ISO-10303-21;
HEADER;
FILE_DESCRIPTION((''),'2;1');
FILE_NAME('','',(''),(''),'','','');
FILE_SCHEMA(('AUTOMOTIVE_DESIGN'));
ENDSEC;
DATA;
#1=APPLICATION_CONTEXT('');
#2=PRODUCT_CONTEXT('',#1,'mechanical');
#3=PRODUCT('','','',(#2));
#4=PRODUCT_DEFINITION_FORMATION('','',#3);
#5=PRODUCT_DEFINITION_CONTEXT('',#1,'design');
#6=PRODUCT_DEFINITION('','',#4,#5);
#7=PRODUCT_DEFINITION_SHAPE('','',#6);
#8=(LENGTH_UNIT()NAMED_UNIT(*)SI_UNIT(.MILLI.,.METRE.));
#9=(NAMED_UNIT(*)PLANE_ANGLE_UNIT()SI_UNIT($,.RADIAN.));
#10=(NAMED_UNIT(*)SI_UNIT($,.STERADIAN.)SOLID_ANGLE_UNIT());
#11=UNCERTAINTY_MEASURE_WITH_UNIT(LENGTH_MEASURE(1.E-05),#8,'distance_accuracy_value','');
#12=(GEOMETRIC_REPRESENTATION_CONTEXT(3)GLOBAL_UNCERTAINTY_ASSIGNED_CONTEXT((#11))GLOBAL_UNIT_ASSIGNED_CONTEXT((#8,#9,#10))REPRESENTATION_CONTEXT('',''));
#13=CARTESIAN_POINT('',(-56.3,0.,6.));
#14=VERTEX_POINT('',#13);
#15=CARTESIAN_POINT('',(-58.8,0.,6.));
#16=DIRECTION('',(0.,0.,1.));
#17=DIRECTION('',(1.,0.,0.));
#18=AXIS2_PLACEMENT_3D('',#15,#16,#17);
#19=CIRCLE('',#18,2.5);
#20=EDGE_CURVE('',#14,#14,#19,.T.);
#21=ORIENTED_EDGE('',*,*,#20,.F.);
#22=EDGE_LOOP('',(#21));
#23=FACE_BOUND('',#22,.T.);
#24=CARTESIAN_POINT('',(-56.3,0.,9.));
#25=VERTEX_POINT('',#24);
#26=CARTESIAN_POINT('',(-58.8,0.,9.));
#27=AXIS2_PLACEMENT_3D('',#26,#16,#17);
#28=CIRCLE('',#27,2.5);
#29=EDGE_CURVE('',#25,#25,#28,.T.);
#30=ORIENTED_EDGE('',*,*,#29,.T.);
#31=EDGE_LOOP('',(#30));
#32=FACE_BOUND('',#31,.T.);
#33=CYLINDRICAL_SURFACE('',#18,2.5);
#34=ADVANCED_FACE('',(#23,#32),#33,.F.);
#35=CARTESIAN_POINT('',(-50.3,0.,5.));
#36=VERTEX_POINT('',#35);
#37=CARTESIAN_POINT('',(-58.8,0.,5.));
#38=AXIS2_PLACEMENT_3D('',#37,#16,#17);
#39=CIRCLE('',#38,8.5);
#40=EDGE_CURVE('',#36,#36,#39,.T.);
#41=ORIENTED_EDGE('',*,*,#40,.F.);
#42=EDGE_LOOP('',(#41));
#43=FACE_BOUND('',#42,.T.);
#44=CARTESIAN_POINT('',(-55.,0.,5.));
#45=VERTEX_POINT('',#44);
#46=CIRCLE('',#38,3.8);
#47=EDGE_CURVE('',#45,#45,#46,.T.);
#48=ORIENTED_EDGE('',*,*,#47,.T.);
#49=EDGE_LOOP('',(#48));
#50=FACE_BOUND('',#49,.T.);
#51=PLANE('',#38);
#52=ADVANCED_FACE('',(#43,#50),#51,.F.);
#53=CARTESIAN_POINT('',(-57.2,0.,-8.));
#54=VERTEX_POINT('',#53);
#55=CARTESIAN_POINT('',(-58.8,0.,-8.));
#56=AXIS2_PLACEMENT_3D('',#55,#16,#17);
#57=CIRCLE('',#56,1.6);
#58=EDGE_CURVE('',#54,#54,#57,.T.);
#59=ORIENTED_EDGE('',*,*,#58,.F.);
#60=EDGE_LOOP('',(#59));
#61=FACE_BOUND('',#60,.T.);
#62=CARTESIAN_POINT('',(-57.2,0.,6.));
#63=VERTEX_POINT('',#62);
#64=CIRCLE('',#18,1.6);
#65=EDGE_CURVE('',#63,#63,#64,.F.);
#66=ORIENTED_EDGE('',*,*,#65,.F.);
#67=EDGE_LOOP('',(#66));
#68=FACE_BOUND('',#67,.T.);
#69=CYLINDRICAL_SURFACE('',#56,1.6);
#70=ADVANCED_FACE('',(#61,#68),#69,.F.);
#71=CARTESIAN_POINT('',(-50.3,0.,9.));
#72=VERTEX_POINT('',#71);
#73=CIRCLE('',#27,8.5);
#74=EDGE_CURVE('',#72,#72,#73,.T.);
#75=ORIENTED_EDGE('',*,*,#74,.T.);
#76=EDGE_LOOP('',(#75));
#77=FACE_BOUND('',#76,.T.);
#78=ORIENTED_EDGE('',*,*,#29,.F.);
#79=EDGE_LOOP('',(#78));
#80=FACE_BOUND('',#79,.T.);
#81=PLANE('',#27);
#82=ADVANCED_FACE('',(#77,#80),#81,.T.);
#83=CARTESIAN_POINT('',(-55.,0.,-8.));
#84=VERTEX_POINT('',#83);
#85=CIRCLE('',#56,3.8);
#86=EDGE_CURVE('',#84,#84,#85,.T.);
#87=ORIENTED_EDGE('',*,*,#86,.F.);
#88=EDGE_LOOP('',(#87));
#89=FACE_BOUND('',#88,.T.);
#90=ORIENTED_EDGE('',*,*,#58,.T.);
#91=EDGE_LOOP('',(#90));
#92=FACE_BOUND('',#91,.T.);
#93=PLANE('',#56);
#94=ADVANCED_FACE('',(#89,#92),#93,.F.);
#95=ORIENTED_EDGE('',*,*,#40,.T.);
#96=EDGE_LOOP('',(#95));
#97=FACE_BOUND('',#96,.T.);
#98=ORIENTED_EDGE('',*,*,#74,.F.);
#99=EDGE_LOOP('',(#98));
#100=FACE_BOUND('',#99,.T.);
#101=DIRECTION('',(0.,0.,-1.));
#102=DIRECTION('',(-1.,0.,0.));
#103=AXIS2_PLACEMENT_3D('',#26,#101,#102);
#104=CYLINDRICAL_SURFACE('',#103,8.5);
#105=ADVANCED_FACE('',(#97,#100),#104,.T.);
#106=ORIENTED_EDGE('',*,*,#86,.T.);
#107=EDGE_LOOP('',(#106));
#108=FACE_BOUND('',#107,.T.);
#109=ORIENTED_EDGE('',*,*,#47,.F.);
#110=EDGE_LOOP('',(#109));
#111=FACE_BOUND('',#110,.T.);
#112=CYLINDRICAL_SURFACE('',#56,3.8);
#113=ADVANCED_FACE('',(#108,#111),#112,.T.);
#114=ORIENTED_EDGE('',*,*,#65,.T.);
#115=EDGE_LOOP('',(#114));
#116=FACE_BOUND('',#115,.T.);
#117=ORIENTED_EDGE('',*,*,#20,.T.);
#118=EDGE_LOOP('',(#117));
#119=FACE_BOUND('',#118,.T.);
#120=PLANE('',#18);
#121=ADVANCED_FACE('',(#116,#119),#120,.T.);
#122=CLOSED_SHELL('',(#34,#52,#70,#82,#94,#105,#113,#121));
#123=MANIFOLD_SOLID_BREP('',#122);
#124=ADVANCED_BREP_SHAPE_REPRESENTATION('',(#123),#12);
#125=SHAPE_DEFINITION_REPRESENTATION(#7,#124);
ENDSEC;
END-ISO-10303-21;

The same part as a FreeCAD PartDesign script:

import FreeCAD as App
import Part
import Sketcher

doc = App.newDocument("Part")
body = doc.addObject("PartDesign::Body", "Body")

# Sketch on XY plane
sketch1 = body.newObject("Sketcher::SketchObject", "Sketch")
sketch1.AttachmentSupport = (doc.getObject("XY_Plane"), [""])
sketch1.MapMode = "FlatFace"
sketch1.addGeometry([
    Part.Circle(App.Vector(-58.8, 0, 0), App.Vector(0, 0, 1), 3.8),
    Part.Circle(App.Vector(-58.8, 0, 0), App.Vector(0, 0, 1), 1.6),
], False)
sketch1.addConstraint([
    Sketcher.Constraint("Coincident", 1, 3, 0, 3),
    Sketcher.Constraint("PointOnObject", 0, 3, -1),
    Sketcher.Constraint("Diameter", 0, 7.6),
    Sketcher.Constraint("Diameter", 1, 3.2),
    Sketcher.Constraint("DistanceX", 0, 3, -1, 1, 58.8),
])
pad1 = body.newObject("PartDesign::Pad", "Pad")
pad1.Profile = sketch1
pad1.Type = "TwoLengths"
pad1.Length = 5
pad1.Length2 = 8

# Sketch on XY plane
sketch2 = body.newObject("Sketcher::SketchObject", "Sketch001")
sketch2.AttachmentSupport = (doc.getObject("XY_Plane"), [""])
sketch2.MapMode = "FlatFace"
sketch2.AttachmentOffset = App.Placement(App.Vector(0, 0, 5), App.Rotation())
sketch2.addGeometry(Part.Circle(App.Vector(-59, 0, 0), App.Vector(0, 0, 1), 8), False)
sketch2.addConstraint([
    Sketcher.Constraint("PointOnObject", 0, 3, -1),
    Sketcher.Constraint("Diameter", 0, 17.0),
    Sketcher.Constraint("DistanceX", 0, 3, -1, 1, 58.8),
])
pad2 = body.newObject("PartDesign::Pad", "Pad001")
pad2.Profile = sketch2
pad2.Length = 4

# Sketch on XY plane
sketch3 = body.newObject("Sketcher::SketchObject", "Sketch002")
sketch3.AttachmentSupport = (doc.getObject("XY_Plane"), [""])
sketch3.MapMode = "FlatFace"
sketch3.AttachmentOffset = App.Placement(App.Vector(0, 0, 5), App.Rotation())
sketch3.addGeometry(Part.Circle(App.Vector(-58.8, 0, 0), App.Vector(0, 0, 1), 1.6), False)
sketch3.addConstraint([
    Sketcher.Constraint("PointOnObject", 0, 3, -1),
    Sketcher.Constraint("Diameter", 0, 3.2),
    Sketcher.Constraint("DistanceX", 0, 3, -1, 1, 58.8),
])
pocket1 = body.newObject("PartDesign::Pocket", "Pocket")
pocket1.Profile = sketch3
pocket1.Length = 4
pocket1.Reversed = True

# Sketch on XY plane
sketch4 = body.newObject("Sketcher::SketchObject", "Sketch003")
sketch4.AttachmentSupport = (doc.getObject("XY_Plane"), [""])
sketch4.MapMode = "FlatFace"
sketch4.AttachmentOffset = App.Placement(App.Vector(0, 0, 9), App.Rotation())
sketch4.addGeometry(Part.Circle(App.Vector(-58.8, 0, 0), App.Vector(0, 0, 1), 2.5), False)
sketch4.addConstraint([
    Sketcher.Constraint("PointOnObject", 0, 3, -1),
    Sketcher.Constraint("Diameter", 0, 5.0),
    Sketcher.Constraint("DistanceX", 0, 3, -1, 1, 58.8),
])
pocket2 = body.newObject("PartDesign::Pocket", "Pocket001")
pocket2.Profile = sketch4
pocket2.Length = 3

doc.recompute()
